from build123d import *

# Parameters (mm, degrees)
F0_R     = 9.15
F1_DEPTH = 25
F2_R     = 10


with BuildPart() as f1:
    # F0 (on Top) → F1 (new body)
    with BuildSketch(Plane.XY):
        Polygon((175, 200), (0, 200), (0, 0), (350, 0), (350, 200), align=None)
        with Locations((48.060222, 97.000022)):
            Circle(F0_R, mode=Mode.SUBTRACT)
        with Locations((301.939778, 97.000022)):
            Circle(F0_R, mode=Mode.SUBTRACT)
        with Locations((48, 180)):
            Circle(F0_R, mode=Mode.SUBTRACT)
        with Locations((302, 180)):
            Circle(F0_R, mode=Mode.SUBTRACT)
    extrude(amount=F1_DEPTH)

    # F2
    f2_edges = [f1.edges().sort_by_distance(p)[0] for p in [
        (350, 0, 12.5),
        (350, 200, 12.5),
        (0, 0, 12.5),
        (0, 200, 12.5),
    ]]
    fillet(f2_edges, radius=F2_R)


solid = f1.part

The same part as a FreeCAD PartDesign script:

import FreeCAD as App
import Part
import Sketcher
from FreeCAD import Vector
Q = App.Units.Quantity


def edges_at(feature, points):
    """Names of the edges that pass closest to the given points."""
    edges = feature.Shape.Edges
    near = lambda p: min(range(len(edges)), key=lambda i: edges[i].distToShape(Part.Vertex(*p))[0])
    return sorted({f"Edge{near(p) + 1}" for p in points})


def add_polygon(sketch, points):
    """Adds a closed chain of lines whose ends are joined by coincident constraints."""
    first, n = sketch.GeometryCount, len(points)
    for a, b in zip(points, points[1:] + points[:1]):
        sketch.addGeometry(Part.LineSegment(App.Vector(*a, 0), App.Vector(*b, 0)), False)
    for i in range(n):
        sketch.addConstraint(Sketcher.Constraint("Coincident", first + i, 2, first + (i + 1) % n, 1))

doc = App.newDocument("Part")
body = doc.addObject("PartDesign::Body", "Body")

sketch1 = body.newObject("Sketcher::SketchObject", "Sketch")
sketch1.AttachmentSupport = (doc.getObject("XY_Plane"), [""])
sketch1.MapMode = "FlatFace"
add_polygon(sketch1, [(0, 200), (0, 0), (350, 0), (350, 200)])
sketch1.addGeometry(Part.Circle(Vector(48, 97, 0), Vector(0, 0, 1), 9), False)
sketch1.addGeometry(Part.Circle(Vector(302, 97, 0), Vector(0, 0, 1), 9), False)
sketch1.addGeometry(Part.Circle(Vector(48, 180, 0), Vector(0, 0, 1), 9), False)
sketch1.addGeometry(Part.Circle(Vector(302, 180, 0), Vector(0, 0, 1), 9), False)
sketch1.addConstraint([
    Sketcher.Constraint("Vertical", 0),
    Sketcher.Constraint("Horizontal", 1),
    Sketcher.Constraint("Vertical", 2),
    Sketcher.Constraint("Horizontal", 3),
    Sketcher.Constraint("Coincident", 0, 2, -1, 1),
    Sketcher.Constraint("Equal", 4, 5),
    Sketcher.Constraint("Equal", 5, 6),
    Sketcher.Constraint("Equal", 6, 7),
    Sketcher.Constraint("Horizontal", 4, 3, 5, 3),
    Sketcher.Constraint("Horizontal", 6, 3, 7, 3),
    Sketcher.Constraint("Diameter", 4, Q("18.3 mm")),
    Sketcher.Constraint("DistanceX", 1, 1, 1, 2, Q("350 mm")),
    Sketcher.Constraint("DistanceY", 0, 2, 0, 1, Q("200 mm")),
    Sketcher.Constraint("DistanceX", -1, 1, 6, 3, Q("48 mm")),
    Sketcher.Constraint("DistanceY", -1, 1, 6, 3, Q("180 mm")),
    Sketcher.Constraint("DistanceX", -1, 1, 7, 3, Q("302 mm")),
    Sketcher.Constraint("DistanceY", -1, 1, 4, 3, Q("97.000022 mm")),
    Sketcher.Constraint("DistanceX", -1, 1, 5, 3, Q("301.939778 mm")),
    Sketcher.Constraint("DistanceX", 4, 3, 1, 2, Q("301.939778 mm")),
])
pad1 = body.newObject("PartDesign::Pad", "Pad")
pad1.Profile = sketch1
pad1.Length = 25
doc.recompute()

fillet = body.newObject("PartDesign::Fillet", "Fillet")
fillet.Base = (pad1, edges_at(pad1, [
    (350, 0, 12.5),
    (350, 200, 12.5),
    (0, 0, 12.5),
    (0, 200, 12.5),
]))
fillet.Radius = 10

doc.recompute()
